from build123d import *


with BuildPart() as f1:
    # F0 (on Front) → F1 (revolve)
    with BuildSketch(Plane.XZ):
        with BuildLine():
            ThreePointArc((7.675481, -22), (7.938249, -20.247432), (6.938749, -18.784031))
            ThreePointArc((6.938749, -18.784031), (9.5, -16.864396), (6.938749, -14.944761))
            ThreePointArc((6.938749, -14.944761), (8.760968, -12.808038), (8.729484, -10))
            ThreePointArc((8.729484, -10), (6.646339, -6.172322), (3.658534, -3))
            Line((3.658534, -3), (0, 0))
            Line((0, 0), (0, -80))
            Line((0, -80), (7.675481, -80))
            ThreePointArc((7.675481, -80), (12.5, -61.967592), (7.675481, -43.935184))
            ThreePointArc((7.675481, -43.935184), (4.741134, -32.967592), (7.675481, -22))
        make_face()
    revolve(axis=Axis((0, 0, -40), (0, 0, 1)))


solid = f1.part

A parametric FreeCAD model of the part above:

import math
import FreeCAD as App
import Part
import Sketcher
from FreeCAD import Vector

doc = App.newDocument("Part")
params = doc.addObject("Spreadsheet::Sheet", "Params")
for row, (alias, value) in enumerate([
    ("sketch1_radius", "2 mm"),
    ("sketch1_radius2", "4 mm"),
    ("sketch1_height", "80 mm"),
    ("revolution_angle", "360 deg"),
], start=1):
    params.set(f"A{row}", alias)
    params.set(f"B{row}", "=" + value)
    params.setAlias(f"B{row}", alias)

body = doc.addObject("PartDesign::Body", "Body")

sketch1 = doc.addObject("Sketcher::SketchObject", "Sketch")
body.addObject(sketch1)
sketch1.AttachmentSupport = (doc.XZ_Plane, [""])
sketch1.MapMode = "FlatFace"
sketch1.addGeometry(Part.ArcOfCircle(Part.Circle(Vector(5.574294, -20.78898, 0), Vector(0, 0, 1), 2.425192), math.radians(-29.957025), math.radians(55.76301)), False)
sketch1.addGeometry(Part.ArcOfCircle(Part.Circle(Vector(7.5, -16.864396, 0), Vector(0, 0, 1), 2), math.radians(-106.297531), math.radians(106.297531)), False)
sketch1.addGeometry(Part.ArcOfCircle(Part.Circle(Vector(4.999999, -11.446011, 0), Vector(0, 0, 1), 4), math.radians(-61.008009), math.radians(21.19251)), False)
sketch1.addGeometry(Part.ArcOfCircle(Part.Circle(Vector(-7.120818, -16.145546, 0), Vector(0, 0, 1), 16.999995), math.radians(21.192519), math.radians(50.648236)), False)
sketch1.addGeometry(Part.LineSegment(Vector(3.658534, -3, 0), Vector(0, 0, 0)), False)
sketch1.addGeometry(Part.LineSegment(Vector(0, 0, 0), Vector(0, -80, 0)), False)
sketch1.addGeometry(Part.LineSegment(Vector(0, -80, 0), Vector(7.675481, -80, 0)), False)
sketch1.addGeometry(Part.ArcOfCircle(Part.Circle(Vector(-23.611758, -61.967592, 0), Vector(0, 0, 1), 36.111758), math.radians(-29.957009), math.radians(29.957009)), False)
sketch1.addGeometry(Part.ArcOfCircle(Part.Circle(Vector(26.704874, -32.967592, 0), Vector(0, 0, 1), 21.96374), math.radians(150.042998), math.radians(209.957002)), False)
sketch1.addConstraint(Sketcher.Constraint("Coincident", 0, 2, 1, 1))
sketch1.addConstraint(Sketcher.Constraint("Coincident", 1, 2, 2, 1))
sketch1.addConstraint(Sketcher.Constraint("Tangent", 2, 2, 3, 1))
sketch1.addConstraint(Sketcher.Constraint("Tangent", 3, 2, 4, 1))
sketch1.addConstraint(Sketcher.Constraint("Coincident", 4, 2, 5, 1))
sketch1.addConstraint(Sketcher.Constraint("Coincident", 5, 2, 6, 1))
sketch1.addConstraint(Sketcher.Constraint("Coincident", 6, 2, 7, 1))
sketch1.addConstraint(Sketcher.Constraint("Tangent", 7, 2, 8, 2))
sketch1.addConstraint(Sketcher.Constraint("Tangent", 8, 1, 0, 1))
sketch1.addConstraint(Sketcher.Constraint("Vertical", 5))
sketch1.addConstraint(Sketcher.Constraint("Horizontal", 6))
sketch1.addConstraint(Sketcher.Constraint("Coincident", 4, 2, -1, 1))
sketch1.addConstraint(Sketcher.Constraint("Vertical", 0, 2, 1, 2))
sketch1.addConstraint(Sketcher.Constraint("Vertical", 6, 2, 7, 2))
sketch1.addConstraint(Sketcher.Constraint("Vertical", 7, 2, 8, 1))
sketch1.addConstraint(Sketcher.Constraint("Radius", 1, 2.0))
sketch1.addConstraint(Sketcher.Constraint("Radius", 2, 4.0))
sketch1.addConstraint(Sketcher.Constraint("DistanceY", 5, 2, 5, 1, 80.0))
sketch1.addConstraint(Sketcher.Constraint("DistanceX", -1, 1, 2, 3, 4.999999))
sketch1.addConstraint(Sketcher.Constraint("DistanceY", 2, 2, -1, 1, 10.0))
sketch1.addConstraint(Sketcher.Constraint("DistanceY", 3, 2, -1, 1, 3.0))
sketch1.addConstraint(Sketcher.Constraint("DistanceY", 8, 1, -1, 1, 22.0))
sketch1.addConstraint(Sketcher.Constraint("DistanceX", -1, 1, 1, 3, 7.5))
sketch1.addConstraint(Sketcher.Constraint("Radius", 0, 2.425192))
sketch1.addConstraint(Sketcher.Constraint("Radius", 8, 21.96374))
sketch1.addConstraint(Sketcher.Constraint("Radius", 3, 16.999995))
sketch1.addConstraint(Sketcher.Constraint("Radius", 7, 36.111758))
sketch1.addConstraint(Sketcher.Constraint("DistanceX", 6, 1, 6, 2, 7.675481))
sketch1.setExpression("Constraints[15]", "Params.sketch1_radius")
sketch1.setExpression("Constraints[16]", "Params.sketch1_radius2")
sketch1.setExpression("Constraints[17]", "Params.sketch1_height")
revolution = doc.addObject("PartDesign::Revolution", "Revolution")
body.addObject(revolution)
revolution.Profile = sketch1
revolution.ReferenceAxis = (sketch1, ["V_Axis"])
revolution.setExpression("Angle", "Params.revolution_angle")

doc.recompute()
